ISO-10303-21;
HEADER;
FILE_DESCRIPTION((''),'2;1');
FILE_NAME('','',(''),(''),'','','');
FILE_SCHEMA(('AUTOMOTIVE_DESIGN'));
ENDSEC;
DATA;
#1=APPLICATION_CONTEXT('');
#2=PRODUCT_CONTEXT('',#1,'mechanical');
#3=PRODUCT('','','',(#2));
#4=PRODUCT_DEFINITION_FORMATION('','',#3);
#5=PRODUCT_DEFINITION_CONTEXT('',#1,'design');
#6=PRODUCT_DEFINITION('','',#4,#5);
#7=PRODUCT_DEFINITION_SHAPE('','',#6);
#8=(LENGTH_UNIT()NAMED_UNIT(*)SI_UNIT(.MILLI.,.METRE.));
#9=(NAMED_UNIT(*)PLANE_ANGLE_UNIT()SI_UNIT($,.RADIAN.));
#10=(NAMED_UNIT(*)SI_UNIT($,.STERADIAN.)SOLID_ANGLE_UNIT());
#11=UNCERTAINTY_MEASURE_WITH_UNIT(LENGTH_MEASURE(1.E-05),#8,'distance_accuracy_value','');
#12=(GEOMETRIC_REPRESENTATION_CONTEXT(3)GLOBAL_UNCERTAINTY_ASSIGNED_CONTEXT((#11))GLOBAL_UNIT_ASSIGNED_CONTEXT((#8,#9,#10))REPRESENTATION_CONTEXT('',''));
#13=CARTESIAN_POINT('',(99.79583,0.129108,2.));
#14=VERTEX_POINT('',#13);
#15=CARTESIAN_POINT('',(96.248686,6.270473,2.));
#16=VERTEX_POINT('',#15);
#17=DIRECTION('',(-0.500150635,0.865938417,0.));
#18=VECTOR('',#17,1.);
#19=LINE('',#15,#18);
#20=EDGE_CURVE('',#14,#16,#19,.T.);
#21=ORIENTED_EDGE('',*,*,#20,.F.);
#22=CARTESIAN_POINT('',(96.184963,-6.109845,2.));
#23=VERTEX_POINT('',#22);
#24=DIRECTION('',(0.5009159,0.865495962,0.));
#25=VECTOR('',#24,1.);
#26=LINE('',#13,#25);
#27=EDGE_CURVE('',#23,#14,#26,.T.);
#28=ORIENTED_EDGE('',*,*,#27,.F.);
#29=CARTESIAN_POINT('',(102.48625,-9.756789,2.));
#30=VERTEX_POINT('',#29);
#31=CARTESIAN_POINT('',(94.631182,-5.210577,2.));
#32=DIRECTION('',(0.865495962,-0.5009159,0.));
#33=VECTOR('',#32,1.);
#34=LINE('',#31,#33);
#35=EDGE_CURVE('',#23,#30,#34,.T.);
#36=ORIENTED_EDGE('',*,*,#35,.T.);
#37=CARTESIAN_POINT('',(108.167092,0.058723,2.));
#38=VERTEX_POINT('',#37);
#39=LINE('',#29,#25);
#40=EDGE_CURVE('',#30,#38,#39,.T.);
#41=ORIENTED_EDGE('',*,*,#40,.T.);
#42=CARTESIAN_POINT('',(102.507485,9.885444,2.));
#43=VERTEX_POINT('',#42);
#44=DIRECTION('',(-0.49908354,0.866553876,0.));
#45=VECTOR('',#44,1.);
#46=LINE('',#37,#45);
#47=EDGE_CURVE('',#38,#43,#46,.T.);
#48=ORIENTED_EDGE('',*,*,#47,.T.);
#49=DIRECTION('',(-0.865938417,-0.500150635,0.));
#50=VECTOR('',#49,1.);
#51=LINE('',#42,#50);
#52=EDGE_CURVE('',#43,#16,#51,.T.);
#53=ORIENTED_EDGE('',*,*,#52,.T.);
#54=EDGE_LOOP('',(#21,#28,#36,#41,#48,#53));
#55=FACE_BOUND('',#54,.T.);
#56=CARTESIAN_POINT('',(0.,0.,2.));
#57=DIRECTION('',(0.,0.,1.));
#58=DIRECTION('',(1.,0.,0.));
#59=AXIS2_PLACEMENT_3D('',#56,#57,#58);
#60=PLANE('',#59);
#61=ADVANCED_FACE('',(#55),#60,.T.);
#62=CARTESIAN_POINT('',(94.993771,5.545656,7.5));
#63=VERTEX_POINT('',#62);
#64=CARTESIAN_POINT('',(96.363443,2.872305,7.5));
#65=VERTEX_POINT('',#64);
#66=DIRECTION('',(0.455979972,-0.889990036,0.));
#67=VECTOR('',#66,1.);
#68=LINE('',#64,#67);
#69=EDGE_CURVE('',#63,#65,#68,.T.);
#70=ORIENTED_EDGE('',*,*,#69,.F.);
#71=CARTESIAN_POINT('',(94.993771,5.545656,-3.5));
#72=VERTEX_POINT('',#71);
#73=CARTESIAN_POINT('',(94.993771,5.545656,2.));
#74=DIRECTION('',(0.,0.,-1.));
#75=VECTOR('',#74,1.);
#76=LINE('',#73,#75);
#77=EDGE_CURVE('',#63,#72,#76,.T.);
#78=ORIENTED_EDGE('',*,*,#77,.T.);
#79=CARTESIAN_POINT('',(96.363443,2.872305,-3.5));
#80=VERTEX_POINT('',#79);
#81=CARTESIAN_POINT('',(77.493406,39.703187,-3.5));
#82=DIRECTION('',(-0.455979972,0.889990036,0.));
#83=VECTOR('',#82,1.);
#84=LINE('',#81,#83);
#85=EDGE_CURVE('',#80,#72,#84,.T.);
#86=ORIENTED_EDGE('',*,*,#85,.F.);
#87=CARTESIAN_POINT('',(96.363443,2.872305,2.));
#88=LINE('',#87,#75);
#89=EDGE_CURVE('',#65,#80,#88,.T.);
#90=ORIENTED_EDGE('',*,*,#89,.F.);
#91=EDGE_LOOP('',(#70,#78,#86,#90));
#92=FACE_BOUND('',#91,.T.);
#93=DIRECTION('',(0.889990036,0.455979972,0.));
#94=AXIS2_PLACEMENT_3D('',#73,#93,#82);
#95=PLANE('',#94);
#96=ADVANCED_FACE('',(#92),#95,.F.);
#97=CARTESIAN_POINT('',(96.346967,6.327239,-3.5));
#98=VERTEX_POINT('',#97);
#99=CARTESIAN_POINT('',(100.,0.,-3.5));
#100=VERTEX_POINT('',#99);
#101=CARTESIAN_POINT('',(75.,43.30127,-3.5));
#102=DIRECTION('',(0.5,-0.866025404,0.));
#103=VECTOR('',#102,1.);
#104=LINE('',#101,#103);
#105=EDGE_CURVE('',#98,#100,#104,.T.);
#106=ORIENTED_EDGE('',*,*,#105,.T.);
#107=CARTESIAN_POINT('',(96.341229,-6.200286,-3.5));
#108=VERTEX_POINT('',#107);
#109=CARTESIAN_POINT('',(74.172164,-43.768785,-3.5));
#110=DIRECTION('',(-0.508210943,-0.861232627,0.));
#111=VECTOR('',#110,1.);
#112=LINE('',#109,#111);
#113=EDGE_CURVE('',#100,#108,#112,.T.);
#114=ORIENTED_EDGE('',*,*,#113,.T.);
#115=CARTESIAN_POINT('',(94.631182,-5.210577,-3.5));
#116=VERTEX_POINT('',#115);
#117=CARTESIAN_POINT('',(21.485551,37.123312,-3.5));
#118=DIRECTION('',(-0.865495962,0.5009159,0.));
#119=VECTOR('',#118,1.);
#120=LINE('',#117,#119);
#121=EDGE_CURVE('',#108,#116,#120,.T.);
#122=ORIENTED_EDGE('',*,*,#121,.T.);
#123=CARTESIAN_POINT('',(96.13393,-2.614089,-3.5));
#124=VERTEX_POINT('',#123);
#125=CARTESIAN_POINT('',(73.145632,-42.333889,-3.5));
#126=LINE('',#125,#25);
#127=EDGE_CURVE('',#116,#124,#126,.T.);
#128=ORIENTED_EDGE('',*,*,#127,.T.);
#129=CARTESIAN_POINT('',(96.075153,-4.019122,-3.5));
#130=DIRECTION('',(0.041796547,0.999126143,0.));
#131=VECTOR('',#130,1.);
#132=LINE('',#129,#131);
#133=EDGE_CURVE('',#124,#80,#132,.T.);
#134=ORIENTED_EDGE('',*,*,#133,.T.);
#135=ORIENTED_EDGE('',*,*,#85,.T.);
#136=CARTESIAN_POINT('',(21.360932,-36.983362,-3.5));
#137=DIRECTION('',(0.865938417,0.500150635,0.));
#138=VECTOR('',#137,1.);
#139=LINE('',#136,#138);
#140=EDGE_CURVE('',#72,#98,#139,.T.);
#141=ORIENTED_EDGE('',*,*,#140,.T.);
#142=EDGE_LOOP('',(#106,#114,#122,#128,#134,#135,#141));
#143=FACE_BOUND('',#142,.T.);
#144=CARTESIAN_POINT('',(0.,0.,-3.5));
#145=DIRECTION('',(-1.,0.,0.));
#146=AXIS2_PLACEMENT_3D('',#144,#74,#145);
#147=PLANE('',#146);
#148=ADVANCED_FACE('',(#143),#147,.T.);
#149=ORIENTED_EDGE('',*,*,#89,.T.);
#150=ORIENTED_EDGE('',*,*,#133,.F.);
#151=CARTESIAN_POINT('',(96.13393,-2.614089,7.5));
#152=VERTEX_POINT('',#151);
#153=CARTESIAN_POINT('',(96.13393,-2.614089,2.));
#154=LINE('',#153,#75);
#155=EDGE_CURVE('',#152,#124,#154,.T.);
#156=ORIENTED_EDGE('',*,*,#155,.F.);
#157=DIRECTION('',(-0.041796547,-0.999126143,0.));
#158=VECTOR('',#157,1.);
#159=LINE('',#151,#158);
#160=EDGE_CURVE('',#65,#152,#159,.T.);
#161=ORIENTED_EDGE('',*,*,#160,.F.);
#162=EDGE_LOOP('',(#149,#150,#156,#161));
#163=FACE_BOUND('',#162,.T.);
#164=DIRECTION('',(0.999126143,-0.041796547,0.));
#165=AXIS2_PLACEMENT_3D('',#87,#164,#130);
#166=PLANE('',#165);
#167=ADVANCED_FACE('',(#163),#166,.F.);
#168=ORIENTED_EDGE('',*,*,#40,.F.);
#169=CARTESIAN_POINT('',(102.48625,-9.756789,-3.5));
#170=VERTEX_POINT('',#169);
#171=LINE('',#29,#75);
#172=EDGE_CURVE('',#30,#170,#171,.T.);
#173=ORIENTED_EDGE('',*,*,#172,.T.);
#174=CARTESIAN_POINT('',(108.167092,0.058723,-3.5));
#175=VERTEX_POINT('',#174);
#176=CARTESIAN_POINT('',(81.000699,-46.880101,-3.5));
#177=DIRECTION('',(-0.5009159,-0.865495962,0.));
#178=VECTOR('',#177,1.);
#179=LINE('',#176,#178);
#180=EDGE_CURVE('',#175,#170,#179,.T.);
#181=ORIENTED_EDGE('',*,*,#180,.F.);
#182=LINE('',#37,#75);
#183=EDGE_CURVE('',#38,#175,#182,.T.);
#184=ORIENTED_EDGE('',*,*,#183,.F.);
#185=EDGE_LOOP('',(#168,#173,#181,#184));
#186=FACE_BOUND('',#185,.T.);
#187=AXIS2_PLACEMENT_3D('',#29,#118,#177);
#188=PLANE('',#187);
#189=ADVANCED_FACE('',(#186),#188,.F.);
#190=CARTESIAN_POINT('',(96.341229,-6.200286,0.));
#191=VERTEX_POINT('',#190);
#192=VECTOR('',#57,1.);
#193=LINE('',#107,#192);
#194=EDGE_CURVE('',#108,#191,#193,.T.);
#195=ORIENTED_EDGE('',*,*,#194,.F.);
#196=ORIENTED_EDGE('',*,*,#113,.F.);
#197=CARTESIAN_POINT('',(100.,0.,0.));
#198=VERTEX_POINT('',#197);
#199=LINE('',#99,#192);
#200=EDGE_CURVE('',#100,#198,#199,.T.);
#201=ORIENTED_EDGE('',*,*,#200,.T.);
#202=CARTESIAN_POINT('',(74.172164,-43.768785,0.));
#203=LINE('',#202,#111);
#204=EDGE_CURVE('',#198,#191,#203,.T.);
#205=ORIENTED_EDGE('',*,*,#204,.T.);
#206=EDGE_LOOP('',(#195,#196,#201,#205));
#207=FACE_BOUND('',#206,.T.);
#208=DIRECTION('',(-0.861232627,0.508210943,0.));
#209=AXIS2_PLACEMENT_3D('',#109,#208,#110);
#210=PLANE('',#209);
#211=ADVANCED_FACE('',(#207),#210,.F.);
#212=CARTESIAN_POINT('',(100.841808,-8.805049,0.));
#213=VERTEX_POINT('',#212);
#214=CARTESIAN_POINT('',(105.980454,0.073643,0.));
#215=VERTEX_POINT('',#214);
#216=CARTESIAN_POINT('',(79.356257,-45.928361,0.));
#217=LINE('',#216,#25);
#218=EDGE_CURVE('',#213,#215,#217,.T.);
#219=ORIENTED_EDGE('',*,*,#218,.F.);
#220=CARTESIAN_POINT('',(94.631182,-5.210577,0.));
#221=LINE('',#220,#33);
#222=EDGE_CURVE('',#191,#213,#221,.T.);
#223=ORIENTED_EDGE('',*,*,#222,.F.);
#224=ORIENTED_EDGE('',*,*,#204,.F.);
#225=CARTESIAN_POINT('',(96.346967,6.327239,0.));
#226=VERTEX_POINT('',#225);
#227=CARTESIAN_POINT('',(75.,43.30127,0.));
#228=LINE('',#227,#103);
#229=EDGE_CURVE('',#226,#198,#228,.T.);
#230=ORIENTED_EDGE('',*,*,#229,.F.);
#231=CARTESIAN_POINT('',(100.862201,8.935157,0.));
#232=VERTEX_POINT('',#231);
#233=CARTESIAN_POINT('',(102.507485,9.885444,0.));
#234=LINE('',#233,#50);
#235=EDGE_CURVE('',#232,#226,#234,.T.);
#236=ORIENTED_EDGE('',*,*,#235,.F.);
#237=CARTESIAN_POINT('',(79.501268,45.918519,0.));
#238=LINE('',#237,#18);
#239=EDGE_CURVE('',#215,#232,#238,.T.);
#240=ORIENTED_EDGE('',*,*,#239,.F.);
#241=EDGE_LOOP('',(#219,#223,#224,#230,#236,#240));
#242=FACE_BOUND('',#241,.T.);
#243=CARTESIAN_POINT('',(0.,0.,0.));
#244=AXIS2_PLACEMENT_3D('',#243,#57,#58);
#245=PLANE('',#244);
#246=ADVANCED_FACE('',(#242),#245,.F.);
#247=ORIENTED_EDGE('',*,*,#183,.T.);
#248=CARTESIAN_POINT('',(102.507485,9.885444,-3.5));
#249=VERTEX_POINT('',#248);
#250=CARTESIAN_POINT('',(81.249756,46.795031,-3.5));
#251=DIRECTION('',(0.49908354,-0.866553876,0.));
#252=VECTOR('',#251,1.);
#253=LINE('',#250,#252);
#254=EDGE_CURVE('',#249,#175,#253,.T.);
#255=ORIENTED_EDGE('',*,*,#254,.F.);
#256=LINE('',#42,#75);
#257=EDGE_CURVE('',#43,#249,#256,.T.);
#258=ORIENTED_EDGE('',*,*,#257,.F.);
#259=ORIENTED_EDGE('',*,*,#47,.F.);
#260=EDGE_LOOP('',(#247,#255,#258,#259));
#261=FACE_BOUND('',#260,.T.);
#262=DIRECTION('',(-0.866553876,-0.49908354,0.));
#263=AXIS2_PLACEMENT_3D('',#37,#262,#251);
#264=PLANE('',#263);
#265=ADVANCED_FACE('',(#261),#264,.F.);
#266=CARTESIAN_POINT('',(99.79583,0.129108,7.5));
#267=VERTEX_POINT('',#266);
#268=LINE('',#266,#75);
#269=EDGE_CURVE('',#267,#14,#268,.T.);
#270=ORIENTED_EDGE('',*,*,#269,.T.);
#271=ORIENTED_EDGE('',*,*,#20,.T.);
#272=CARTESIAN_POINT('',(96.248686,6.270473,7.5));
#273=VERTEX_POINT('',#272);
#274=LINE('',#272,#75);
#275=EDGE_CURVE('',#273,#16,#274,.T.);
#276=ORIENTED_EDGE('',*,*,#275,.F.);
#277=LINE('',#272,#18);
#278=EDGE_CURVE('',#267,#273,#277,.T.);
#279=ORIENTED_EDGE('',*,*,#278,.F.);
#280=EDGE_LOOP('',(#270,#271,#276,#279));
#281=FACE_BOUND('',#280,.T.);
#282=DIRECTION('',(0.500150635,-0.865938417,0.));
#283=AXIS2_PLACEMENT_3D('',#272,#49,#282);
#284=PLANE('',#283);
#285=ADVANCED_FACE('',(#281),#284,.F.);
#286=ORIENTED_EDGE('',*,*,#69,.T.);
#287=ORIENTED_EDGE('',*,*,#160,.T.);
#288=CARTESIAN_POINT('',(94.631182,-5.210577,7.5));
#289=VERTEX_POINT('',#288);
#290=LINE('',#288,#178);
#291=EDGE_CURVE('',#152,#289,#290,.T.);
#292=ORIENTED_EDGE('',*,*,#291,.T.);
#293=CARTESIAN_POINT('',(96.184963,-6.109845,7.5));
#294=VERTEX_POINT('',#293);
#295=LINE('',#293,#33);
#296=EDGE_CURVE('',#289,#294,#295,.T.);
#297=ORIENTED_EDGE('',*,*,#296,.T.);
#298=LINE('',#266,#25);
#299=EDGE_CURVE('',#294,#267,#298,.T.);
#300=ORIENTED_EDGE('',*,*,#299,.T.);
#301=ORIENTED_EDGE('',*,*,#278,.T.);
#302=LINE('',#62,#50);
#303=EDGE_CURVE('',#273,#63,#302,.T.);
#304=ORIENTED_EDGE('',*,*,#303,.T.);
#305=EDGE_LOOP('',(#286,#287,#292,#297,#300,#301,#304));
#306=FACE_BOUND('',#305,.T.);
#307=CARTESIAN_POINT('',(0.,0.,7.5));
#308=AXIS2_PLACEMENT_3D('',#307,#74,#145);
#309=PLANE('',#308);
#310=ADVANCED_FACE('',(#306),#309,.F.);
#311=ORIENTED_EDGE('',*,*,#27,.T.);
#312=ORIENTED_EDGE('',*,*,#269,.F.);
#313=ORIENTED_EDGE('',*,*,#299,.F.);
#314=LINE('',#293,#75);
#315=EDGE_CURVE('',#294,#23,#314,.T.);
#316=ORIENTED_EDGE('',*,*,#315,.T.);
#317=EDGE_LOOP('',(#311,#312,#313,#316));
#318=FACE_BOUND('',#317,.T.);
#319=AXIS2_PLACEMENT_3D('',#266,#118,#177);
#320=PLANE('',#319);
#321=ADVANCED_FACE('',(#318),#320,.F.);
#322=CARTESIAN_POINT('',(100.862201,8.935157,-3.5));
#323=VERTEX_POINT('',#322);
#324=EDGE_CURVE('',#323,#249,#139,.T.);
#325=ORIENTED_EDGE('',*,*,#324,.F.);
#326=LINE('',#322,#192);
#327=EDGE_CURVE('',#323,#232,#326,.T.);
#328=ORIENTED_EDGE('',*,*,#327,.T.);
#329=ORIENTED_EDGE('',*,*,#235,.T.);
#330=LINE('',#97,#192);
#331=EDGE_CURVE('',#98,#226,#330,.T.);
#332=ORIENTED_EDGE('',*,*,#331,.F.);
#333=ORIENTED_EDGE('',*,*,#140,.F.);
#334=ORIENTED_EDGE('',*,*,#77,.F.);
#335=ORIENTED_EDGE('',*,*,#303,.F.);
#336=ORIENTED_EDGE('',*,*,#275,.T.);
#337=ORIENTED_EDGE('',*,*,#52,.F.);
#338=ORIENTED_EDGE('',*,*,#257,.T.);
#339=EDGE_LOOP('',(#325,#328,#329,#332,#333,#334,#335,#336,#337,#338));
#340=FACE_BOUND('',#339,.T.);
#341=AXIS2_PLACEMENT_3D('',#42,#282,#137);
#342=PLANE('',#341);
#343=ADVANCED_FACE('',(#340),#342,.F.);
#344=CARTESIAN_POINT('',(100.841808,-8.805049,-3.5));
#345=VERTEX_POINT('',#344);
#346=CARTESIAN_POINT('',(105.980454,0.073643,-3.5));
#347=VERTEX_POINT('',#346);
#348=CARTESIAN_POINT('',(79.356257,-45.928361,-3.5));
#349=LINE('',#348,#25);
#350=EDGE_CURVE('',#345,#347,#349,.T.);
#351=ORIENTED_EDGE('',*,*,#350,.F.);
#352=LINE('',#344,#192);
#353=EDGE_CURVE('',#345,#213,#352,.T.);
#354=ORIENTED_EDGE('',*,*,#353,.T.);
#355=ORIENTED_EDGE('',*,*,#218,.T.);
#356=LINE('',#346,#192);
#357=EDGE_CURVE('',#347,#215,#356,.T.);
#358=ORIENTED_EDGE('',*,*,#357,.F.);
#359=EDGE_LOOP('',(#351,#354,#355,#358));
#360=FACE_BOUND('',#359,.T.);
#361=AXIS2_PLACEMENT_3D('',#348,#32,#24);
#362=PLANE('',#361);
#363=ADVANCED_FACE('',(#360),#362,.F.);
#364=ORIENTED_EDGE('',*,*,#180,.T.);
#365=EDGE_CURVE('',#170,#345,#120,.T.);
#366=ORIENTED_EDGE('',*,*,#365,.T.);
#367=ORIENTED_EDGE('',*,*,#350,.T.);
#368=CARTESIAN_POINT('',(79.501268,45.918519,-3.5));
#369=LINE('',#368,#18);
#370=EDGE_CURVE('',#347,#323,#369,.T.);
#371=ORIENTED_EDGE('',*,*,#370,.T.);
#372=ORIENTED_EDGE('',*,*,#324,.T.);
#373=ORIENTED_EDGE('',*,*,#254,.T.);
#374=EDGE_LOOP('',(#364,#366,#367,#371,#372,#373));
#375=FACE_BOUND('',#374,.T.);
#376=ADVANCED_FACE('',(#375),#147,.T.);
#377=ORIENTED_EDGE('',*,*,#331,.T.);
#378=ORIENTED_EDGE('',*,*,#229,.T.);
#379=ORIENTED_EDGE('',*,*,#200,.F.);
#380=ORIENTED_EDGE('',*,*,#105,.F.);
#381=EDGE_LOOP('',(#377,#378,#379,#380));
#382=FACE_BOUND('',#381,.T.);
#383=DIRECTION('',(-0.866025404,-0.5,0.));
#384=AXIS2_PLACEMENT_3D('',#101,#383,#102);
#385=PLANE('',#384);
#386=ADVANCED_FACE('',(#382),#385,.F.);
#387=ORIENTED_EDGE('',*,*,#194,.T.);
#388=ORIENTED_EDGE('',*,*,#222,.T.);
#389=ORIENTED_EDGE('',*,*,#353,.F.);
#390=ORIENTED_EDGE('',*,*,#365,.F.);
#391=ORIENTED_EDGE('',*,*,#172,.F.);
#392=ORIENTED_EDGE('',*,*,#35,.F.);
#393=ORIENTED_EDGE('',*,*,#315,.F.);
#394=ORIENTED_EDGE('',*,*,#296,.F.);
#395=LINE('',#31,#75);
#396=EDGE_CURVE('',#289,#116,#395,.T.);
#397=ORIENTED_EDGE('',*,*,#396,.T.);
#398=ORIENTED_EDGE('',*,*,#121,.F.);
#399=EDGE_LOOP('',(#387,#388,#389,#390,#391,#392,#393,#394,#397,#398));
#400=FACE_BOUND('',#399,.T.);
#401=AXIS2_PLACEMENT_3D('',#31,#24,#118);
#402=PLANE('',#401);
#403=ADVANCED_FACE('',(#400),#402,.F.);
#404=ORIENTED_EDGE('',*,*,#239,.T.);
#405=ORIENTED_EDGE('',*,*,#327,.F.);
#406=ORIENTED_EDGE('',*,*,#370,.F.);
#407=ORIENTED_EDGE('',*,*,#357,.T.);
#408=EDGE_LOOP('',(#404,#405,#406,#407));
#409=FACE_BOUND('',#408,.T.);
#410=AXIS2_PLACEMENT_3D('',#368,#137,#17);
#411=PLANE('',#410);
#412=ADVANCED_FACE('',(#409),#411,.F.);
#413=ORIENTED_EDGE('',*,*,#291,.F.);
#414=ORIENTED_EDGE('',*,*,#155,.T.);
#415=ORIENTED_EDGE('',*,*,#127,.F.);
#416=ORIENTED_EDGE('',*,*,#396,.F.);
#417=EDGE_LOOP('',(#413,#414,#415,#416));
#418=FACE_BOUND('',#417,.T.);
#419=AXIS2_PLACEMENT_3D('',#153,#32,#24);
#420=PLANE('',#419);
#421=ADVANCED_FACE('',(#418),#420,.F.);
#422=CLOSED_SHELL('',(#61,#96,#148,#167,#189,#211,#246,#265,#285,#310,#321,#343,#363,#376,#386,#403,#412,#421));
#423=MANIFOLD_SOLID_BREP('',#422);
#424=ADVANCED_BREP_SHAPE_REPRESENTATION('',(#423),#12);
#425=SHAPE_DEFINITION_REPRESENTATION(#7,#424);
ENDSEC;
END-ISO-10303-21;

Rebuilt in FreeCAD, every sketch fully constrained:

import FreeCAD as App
import Part
import Sketcher
Q = App.Units.Quantity


def add_polygon(sketch, points):
    """Adds a closed chain of lines whose ends are joined by coincident constraints."""
    first, n = sketch.GeometryCount, len(points)
    for a, b in zip(points, points[1:] + points[:1]):
        sketch.addGeometry(Part.LineSegment(App.Vector(*a, 0), App.Vector(*b, 0)), False)
    for i in range(n):
        sketch.addConstraint(Sketcher.Constraint("Coincident", first + i, 2, first + (i + 1) % n, 1))

doc = App.newDocument("Part")
body = doc.addObject("PartDesign::Body", "Body")

# Sketch on XY plane
sketch1 = doc.addObject("Sketcher::SketchObject", "Sketch")
body.addObject(sketch1)
sketch1.AttachmentSupport = (doc.XY_Plane, [""])
sketch1.MapMode = "FlatFace"
add_polygon(sketch1, [(94.6, -5.2), (102.5, -9.8), (108.2, 0.1), (102.5, 9.9), (95, 5.5), (96.4, 2.9), (96.1, -2.6)])  # lines 0-6
sketch1.addConstraint(Sketcher.Constraint("Perpendicular", 0, 1))
sketch1.addConstraint(Sketcher.Constraint("Parallel", 1, 6))
sketch1.addConstraint(Sketcher.Constraint("Distance", 6, Q("3 mm")))
sketch1.addConstraint(Sketcher.Constraint("Distance", 2, Q("11.34 mm")))
sketch1.addConstraint(Sketcher.Constraint("Distance", 0, Q("9.075799 mm")))
sketch1.addConstraint(Sketcher.Constraint("Distance", 4, Q("3.003799 mm")))
sketch1.addConstraint(Sketcher.Constraint("DistanceY", 0, 2, 5, 2, Q("7.1427 mm")))
sketch1.addConstraint(Sketcher.Constraint("DistanceY", 6, 2, 1, 2, Q("5.2693 mm")))
sketch1.addConstraint(Sketcher.Constraint("Distance", 3, Q("8.676962 mm")))
sketch1.addConstraint(Sketcher.Constraint("DistanceX", -1, 1, 0, 2, Q("102.48625 mm")))
sketch1.addConstraint(Sketcher.Constraint("DistanceY", 0, 2, -1, 1, Q("9.756789 mm")))
sketch1.addConstraint(Sketcher.Constraint("DistanceX", -1, 1, 3, 2, Q("94.993771 mm")))
sketch1.addConstraint(Sketcher.Constraint("DistanceY", 1, 2, 2, 2, Q("9.826721 mm")))
sketch1.addConstraint(Sketcher.Constraint("DistanceY", 4, 2, 3, 2, Q("2.673351 mm")))
pad1 = doc.addObject("PartDesign::Pad", "Pad")
body.addObject(pad1)
pad1.Profile = sketch1
pad1.Length = 2

# Sketch on XY plane
sketch2 = doc.addObject("Sketcher::SketchObject", "Sketch001")
body.addObject(sketch2)
sketch2.AttachmentSupport = (doc.XY_Plane, [""])
sketch2.MapMode = "FlatFace"
add_polygon(sketch2, [(100, 0), (96.3, -6.2), (94.6, -5.2), (96.1, -2.6), (96.4, 2.9), (95, 5.5), (96.3, 6.3)])  # lines 0-6
add_polygon(sketch2, [(102.5, -9.8), (100.8, -8.8), (106, 0.1), (100.9, 8.9), (102.5, 9.9), (108.2, 0.1)])  # lines 7-12
sketch2.addConstraint(Sketcher.Constraint("PointOnObject", 6, 2, -1))
sketch2.addConstraint(Sketcher.Constraint("Perpendicular", 1, 2))
sketch2.addConstraint(Sketcher.Constraint("Perpendicular", 2, 7))
sketch2.addConstraint(Sketcher.Constraint("Perpendicular", 7, 8))
sketch2.addConstraint(Sketcher.Constraint("Perpendicular", 5, 9))
sketch2.addConstraint(Sketcher.Constraint("Perpendicular", 9, 10))
sketch2.addConstraint(Sketcher.Constraint("Parallel", 8, 12))
sketch2.addConstraint(Sketcher.Constraint("Equal", 7, 10))
sketch2.addConstraint(Sketcher.Constraint("Angle", 6, Q("-60 deg")))
sketch2.addConstraint(Sketcher.Constraint("Distance", 2, Q("3 mm")))
sketch2.addConstraint(Sketcher.Constraint("DistanceX", -1, 1, 6, 2, Q("100 mm")))
sketch2.addConstraint(Sketcher.Constraint("Distance", 7, Q("1.9 mm")))
sketch2.addConstraint(Sketcher.Constraint("Distance", 11, Q("11.34 mm")))
sketch2.addConstraint(Sketcher.Constraint("Distance", 1, Q("1.975799 mm")))
sketch2.addConstraint(Sketcher.Constraint("Distance", 4, Q("3.003799 mm")))
sketch2.addConstraint(Sketcher.Constraint("Distance", 8, Q("10.258501 mm")))
sketch2.addConstraint(Sketcher.Constraint("DistanceX", -1, 1, 9, 2, Q("100.862201 mm")))
sketch2.addConstraint(Sketcher.Constraint("DistanceX", 2, 2, 0, 2, Q("0.207299 mm")))
sketch2.addConstraint(Sketcher.Constraint("DistanceY", 4, 2, 9, 2, Q("3.389501 mm")))
sketch2.addConstraint(Sketcher.Constraint("DistanceY", 12, 2, 2, 2, Q("7.1427 mm")))
sketch2.addConstraint(Sketcher.Constraint("Distance", 12, Q("11.340911 mm")))
sketch2.addConstraint(Sketcher.Constraint("DistanceX", -1, 1, 0, 2, Q("96.341229 mm")))
sketch2.addConstraint(Sketcher.Constraint("DistanceY", 2, 2, -1, 1, Q("2.614089 mm")))
sketch2.addConstraint(Sketcher.Constraint("DistanceX", -1, 1, 4, 2, Q("94.993771 mm")))
sketch2.addConstraint(Sketcher.Constraint("DistanceY", -1, 1, 5, 2, Q("6.327239 mm")))
sketch2.addConstraint(Sketcher.Constraint("DistanceX", 1, 2, 3, 2, Q("1.732261 mm")))
pad2 = doc.addObject("PartDesign::Pad", "Pad001")
body.addObject(pad2)
pad2.Profile = sketch2
pad2.Length = 3.5
pad2.Reversed = True

# Sketch on XY plane
sketch3 = doc.addObject("Sketcher::SketchObject", "Sketch002")
body.addObject(sketch3)
sketch3.AttachmentSupport = (doc.XY_Plane, [""])
sketch3.MapMode = "FlatFace"
sketch3.AttachmentOffset = App.Placement(App.Vector(0, 0, 2), App.Rotation())
add_polygon(sketch3, [(96.1, -2.6), (94.6, -5.2), (96.2, -6.1), (99.8, 0.1), (96.2, 6.3), (95, 5.5), (96.4, 2.9)])  # lines 0-6
sketch3.addConstraint(Sketcher.Constraint("Perpendicular", 0, 1))
sketch3.addConstraint(Sketcher.Constraint("Perpendicular", 1, 2))
sketch3.addConstraint(Sketcher.Constraint("Perpendicular", 3, 4))
sketch3.addConstraint(Sketcher.Constraint("Distance", 0, Q("3 mm")))
sketch3.addConstraint(Sketcher.Constraint("Distance", 5, Q("3.003799 mm")))
sketch3.addConstraint(Sketcher.Constraint("DistanceY", 1, 2, 4, 2, Q("11.655502 mm")))
sketch3.addConstraint(Sketcher.Constraint("DistanceX", 6, 2, 2, 2, Q("3.6619 mm")))
sketch3.addConstraint(Sketcher.Constraint("Distance", 1, Q("1.795249 mm")))
sketch3.addConstraint(Sketcher.Constraint("Distance", 2, Q("7.20853 mm")))
sketch3.addConstraint(Sketcher.Constraint("Distance", 3, Q("7.09215 mm")))
sketch3.addConstraint(Sketcher.Constraint("DistanceX", -1, 1, 2, 2, Q("99.79583 mm")))
sketch3.addConstraint(Sketcher.Constraint("DistanceX", -1, 1, 4, 2, Q("94.993771 mm")))
sketch3.addConstraint(Sketcher.Constraint("DistanceY", 6, 2, -1, 1, Q("2.614089 mm")))
sketch3.addConstraint(Sketcher.Constraint("DistanceY", 5, 2, 4, 2, Q("2.673351 mm")))
pad3 = doc.addObject("PartDesign::Pad", "Pad002")
body.addObject(pad3)
pad3.Profile = sketch3
pad3.Length = 5.5

doc.recompute()
